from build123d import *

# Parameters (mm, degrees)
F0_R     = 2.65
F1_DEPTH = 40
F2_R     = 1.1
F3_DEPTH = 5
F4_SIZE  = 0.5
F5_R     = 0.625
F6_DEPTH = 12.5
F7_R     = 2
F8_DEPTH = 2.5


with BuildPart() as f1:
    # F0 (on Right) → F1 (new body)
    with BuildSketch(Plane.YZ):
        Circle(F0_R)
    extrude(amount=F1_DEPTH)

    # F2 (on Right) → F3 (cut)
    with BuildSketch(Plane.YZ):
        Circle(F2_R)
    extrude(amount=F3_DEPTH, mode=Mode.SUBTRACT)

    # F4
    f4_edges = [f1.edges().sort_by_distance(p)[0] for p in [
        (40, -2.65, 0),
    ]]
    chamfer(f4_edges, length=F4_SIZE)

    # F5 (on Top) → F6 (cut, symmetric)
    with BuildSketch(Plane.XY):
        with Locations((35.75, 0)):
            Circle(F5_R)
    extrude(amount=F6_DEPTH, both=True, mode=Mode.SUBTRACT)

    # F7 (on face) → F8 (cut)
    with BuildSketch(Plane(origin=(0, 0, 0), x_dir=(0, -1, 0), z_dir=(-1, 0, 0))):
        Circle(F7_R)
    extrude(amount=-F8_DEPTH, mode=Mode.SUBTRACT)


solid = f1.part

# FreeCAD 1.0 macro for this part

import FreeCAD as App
import Part
import Sketcher
from FreeCAD import Vector


def edges_at(feature, points):
    """Names of the edges that pass closest to the given points."""
    edges = feature.Shape.Edges
    near = lambda p: min(range(len(edges)), key=lambda i: edges[i].distToShape(Part.Vertex(*p))[0])
    return sorted({f"Edge{near(p) + 1}" for p in points})

doc = App.newDocument("Part")
body = doc.addObject("PartDesign::Body", "Body")

sketch1 = body.newObject("Sketcher::SketchObject", "Sketch")
sketch1.AttachmentSupport = (doc.getObject("YZ_Plane"), [""])
sketch1.MapMode = "FlatFace"
sketch1.addGeometry(Part.Circle(Vector(0, 0, 0), Vector(0, 0, 1), 2.6), False)
sketch1.addConstraint(Sketcher.Constraint("Coincident", 0, 3, -1, 1))
sketch1.addConstraint(Sketcher.Constraint("Diameter", 0, 5.3))
pad1 = body.newObject("PartDesign::Pad", "Pad")
pad1.Profile = sketch1
pad1.Length = 40

sketch2 = body.newObject("Sketcher::SketchObject", "Sketch001")
sketch2.AttachmentSupport = (doc.getObject("YZ_Plane"), [""])
sketch2.MapMode = "FlatFace"
sketch2.addGeometry(Part.Circle(Vector(0, 0, 0), Vector(0, 0, 1), 1.1), False)
sketch2.addConstraint(Sketcher.Constraint("Coincident", 0, 3, -1, 1))
sketch2.addConstraint(Sketcher.Constraint("Diameter", 0, 2.2))
pocket1 = body.newObject("PartDesign::Pocket", "Pocket")
pocket1.Profile = sketch2
pocket1.Length = 5
pocket1.Reversed = True
doc.recompute()

chamfer = body.newObject("PartDesign::Chamfer", "Chamfer")
chamfer.Base = (pocket1, edges_at(pocket1, [(40, -2.65, 0)]))
chamfer.Size = 0.5

sketch3 = body.newObject("Sketcher::SketchObject", "Sketch002")
sketch3.AttachmentSupport = (doc.getObject("XY_Plane"), [""])
sketch3.MapMode = "FlatFace"
sketch3.addGeometry(Part.Circle(Vector(35.8, 0, 0), Vector(0, 0, 1), 0.6), False)
sketch3.addConstraint(Sketcher.Constraint("PointOnObject", 0, 3, -1))
sketch3.addConstraint(Sketcher.Constraint("Diameter", 0, 1.25))
sketch3.addConstraint(Sketcher.Constraint("DistanceX", -1, 1, 0, 3, 35.75))
pocket2 = body.newObject("PartDesign::Pocket", "Pocket001")
pocket2.Profile = sketch3
pocket2.Length = 25
pocket2.Midplane = True

sketch4 = body.newObject("Sketcher::SketchObject", "Sketch003")
sketch4.AttachmentSupport = (doc.getObject("YZ_Plane"), [""])
sketch4.MapMode = "FlatFace"
sketch4.addGeometry(Part.Circle(Vector(0, 0, 0), Vector(0, 0, 1), 2), False)
sketch4.addConstraint(Sketcher.Constraint("Coincident", 0, 3, -1, 1))
sketch4.addConstraint(Sketcher.Constraint("Diameter", 0, 4.0))
pocket3 = body.newObject("PartDesign::Pocket", "Pocket002")
pocket3.Profile = sketch4
pocket3.Length = 2.5
pocket3.Reversed = True

doc.recompute()
